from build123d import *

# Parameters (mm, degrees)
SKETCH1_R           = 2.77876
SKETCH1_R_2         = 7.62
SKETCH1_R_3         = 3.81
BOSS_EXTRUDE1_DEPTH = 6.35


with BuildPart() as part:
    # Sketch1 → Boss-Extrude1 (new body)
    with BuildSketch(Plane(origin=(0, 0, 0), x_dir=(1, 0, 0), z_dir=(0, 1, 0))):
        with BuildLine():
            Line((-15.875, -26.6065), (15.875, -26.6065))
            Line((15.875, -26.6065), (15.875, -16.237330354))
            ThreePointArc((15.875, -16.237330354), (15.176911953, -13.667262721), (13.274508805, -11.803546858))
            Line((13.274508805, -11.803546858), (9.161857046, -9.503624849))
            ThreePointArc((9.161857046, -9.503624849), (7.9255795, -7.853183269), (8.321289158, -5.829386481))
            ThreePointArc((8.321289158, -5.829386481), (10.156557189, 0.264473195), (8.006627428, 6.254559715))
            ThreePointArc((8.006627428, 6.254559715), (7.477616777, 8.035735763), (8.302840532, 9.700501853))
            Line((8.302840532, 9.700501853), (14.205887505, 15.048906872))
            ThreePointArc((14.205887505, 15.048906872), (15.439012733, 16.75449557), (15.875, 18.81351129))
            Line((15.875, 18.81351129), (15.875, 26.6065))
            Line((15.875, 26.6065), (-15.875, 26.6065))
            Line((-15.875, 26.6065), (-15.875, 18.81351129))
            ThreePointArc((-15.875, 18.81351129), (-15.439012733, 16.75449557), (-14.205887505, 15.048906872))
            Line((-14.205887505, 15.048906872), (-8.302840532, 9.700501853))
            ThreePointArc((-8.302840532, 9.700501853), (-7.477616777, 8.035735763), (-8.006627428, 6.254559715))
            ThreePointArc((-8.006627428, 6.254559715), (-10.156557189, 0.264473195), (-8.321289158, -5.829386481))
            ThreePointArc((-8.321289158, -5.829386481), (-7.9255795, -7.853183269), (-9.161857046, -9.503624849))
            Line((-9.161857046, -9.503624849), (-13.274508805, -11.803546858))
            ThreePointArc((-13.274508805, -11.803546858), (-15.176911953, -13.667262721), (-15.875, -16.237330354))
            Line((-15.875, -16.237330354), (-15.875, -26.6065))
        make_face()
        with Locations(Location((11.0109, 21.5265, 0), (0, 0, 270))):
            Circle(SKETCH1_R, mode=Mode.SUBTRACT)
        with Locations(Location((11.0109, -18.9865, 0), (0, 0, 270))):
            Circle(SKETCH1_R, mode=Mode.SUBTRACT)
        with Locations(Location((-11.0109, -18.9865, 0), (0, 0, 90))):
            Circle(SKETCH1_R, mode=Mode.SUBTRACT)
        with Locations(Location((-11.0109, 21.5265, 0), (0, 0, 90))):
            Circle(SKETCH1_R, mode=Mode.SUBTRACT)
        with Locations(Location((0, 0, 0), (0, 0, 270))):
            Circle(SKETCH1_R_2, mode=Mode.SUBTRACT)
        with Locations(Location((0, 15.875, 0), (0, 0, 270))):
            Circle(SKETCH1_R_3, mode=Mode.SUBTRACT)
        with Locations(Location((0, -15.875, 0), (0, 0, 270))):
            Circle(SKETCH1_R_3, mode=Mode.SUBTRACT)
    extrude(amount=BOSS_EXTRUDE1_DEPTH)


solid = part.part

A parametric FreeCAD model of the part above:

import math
import FreeCAD as App
import Part
import Sketcher
from FreeCAD import Vector
Q = App.Units.Quantity

doc = App.newDocument("Part")
params = doc.addObject("Spreadsheet::Sheet", "Params")
for row, (alias, value) in enumerate([
    ("sketch1_diameter", "0.3 in"),
    ("sketch1_diameter2", "0.6 in"),
    ("sketch1_radius", "0.2 in"),
    ("sketch1_radius2", "0.1 in"),
    ("sketch1_radius3", "0.4 in"),
    ("pad1_length", "0.25 in"),
], start=1):
    params.set(f"A{row}", alias)
    params.set(f"B{row}", "=" + value)
    params.setAlias(f"B{row}", alias)

body = doc.addObject("PartDesign::Body", "Body")

# Sketch on XZ plane
sketch1 = body.newObject("Sketcher::SketchObject", "Sketch")
sketch1.AttachmentSupport = (doc.getObject("XZ_Plane"), [""])
sketch1.MapMode = "FlatFace"
sketch1.addGeometry([
    Part.LineSegment(Vector(-15.875, 26.6065, 0), Vector(15.875, 26.6065, 0)),  # 0
    Part.LineSegment(Vector(15.875, 26.6065, 0), Vector(15.875, 16.23733, 0)),  # 1
    Part.ArcOfCircle(Part.Circle(Vector(10.795, 16.23733, 0), Vector(0, 0, 1), 5.08), math.radians(-60.78473), math.radians(0)),  # 2
    Part.LineSegment(Vector(13.274509, 11.803547, 0), Vector(9.161857, 9.503625, 0)),  # 3
    Part.ArcOfCircle(Part.Circle(Vector(10.401611, 7.286733, 0), Vector(0, 0, 1), 2.54), math.radians(119.21527), math.radians(215.012736)),  # 4
    Part.ArcOfCircle(Part.Circle(Vector(0, 0, 0), Vector(0, 0, 1), 10.16), math.radians(-37.995986), math.radians(35.012736)),  # 5
    Part.ArcOfCircle(Part.Circle(Vector(10.008284, -7.8182, 0), Vector(0, 0, 1), 2.54), math.radians(142.004014), math.radians(227.822119)),  # 6
    Part.LineSegment(Vector(8.302841, -9.700502, 0), Vector(14.205888, -15.048907, 0)),  # 7
    Part.ArcOfCircle(Part.Circle(Vector(10.795, -18.813511, 0), Vector(0, 0, 1), 5.08), math.radians(0), math.radians(47.822119)),  # 8
    Part.LineSegment(Vector(15.875, -18.813511, 0), Vector(15.875, -26.6065, 0)),  # 9
    Part.LineSegment(Vector(15.875, -26.6065, 0), Vector(-15.875, -26.6065, 0)),  # 10
    Part.LineSegment(Vector(-15.875, -26.6065, 0), Vector(-15.875, -18.813511, 0)),  # 11
    Part.ArcOfCircle(Part.Circle(Vector(-10.795, -18.813511, 0), Vector(0, 0, 1), 5.08), math.radians(132.177881), math.radians(180)),  # 12
    Part.LineSegment(Vector(-14.205888, -15.048907, 0), Vector(-8.302841, -9.700502, 0)),  # 13
    Part.ArcOfCircle(Part.Circle(Vector(-10.008284, -7.8182, 0), Vector(0, 0, 1), 2.54), math.radians(-47.822119), math.radians(37.995986)),  # 14
    Part.ArcOfCircle(Part.Circle(Vector(0, 0, 0), Vector(0, 0, 1), 10.16), math.radians(144.987264), math.radians(217.995986)),  # 15
    Part.ArcOfCircle(Part.Circle(Vector(-10.401611, 7.286733, 0), Vector(0, 0, 1), 2.54), math.radians(-35.012736), math.radians(60.78473)),  # 16
    Part.LineSegment(Vector(-9.161857, 9.503625, 0), Vector(-13.274509, 11.803547, 0)),  # 17
    Part.ArcOfCircle(Part.Circle(Vector(-10.795, 16.23733, 0), Vector(0, 0, 1), 5.08), math.radians(180), math.radians(240.78473)),  # 18
    Part.LineSegment(Vector(-15.875, 16.23733, 0), Vector(-15.875, 26.6065, 0)),  # 19
    Part.Circle(Vector(-11.0109, 18.9865, 0), Vector(0, 0, 1), 2.77876),  # 20
    Part.Circle(Vector(0, 15.875, 0), Vector(0, 0, 1), 3.81),  # 21
    Part.Circle(Vector(11.0109, 18.9865, 0), Vector(0, 0, 1), 2.77876),  # 22
    Part.Circle(Vector(0, 0, 0), Vector(0, 0, 1), 7.62),  # 23
    Part.Circle(Vector(-11.0109, -21.5265, 0), Vector(0, 0, 1), 2.77876),  # 24
    Part.Circle(Vector(0, -15.875, 0), Vector(0, 0, 1), 3.81),  # 25
    Part.Circle(Vector(11.0109, -21.5265, 0), Vector(0, 0, 1), 2.77876),  # 26
], False)
sketch1.addConstraint([
    Sketcher.Constraint("Coincident", 0, 2, 1, 1),
    Sketcher.Constraint("Tangent", 1, 2, 2, 2),
    Sketcher.Constraint("Tangent", 2, 1, 3, 1),
    Sketcher.Constraint("Tangent", 3, 2, 4, 1),
    Sketcher.Constraint("Tangent", 4, 2, 5, 2),
    Sketcher.Constraint("Tangent", 5, 1, 6, 1),
    Sketcher.Constraint("Tangent", 6, 2, 7, 1),
    Sketcher.Constraint("Tangent", 7, 2, 8, 2),
    Sketcher.Constraint("Tangent", 8, 1, 9, 1),
    Sketcher.Constraint("Coincident", 9, 2, 10, 1),
    Sketcher.Constraint("Coincident", 10, 2, 11, 1),
    Sketcher.Constraint("Tangent", 11, 2, 12, 2),
    Sketcher.Constraint("Tangent", 12, 1, 13, 1),
    Sketcher.Constraint("Tangent", 13, 2, 14, 1),
    Sketcher.Constraint("Tangent", 14, 2, 15, 2),
    Sketcher.Constraint("Tangent", 15, 1, 16, 1),
    Sketcher.Constraint("Tangent", 16, 2, 17, 1),
    Sketcher.Constraint("Tangent", 17, 2, 18, 2),
    Sketcher.Constraint("Tangent", 18, 1, 19, 1),
    Sketcher.Constraint("Coincident", 19, 2, 0, 1),
    Sketcher.Constraint("Horizontal", 0),
    Sketcher.Constraint("Vertical", 1),
    Sketcher.Constraint("Vertical", 9),
    Sketcher.Constraint("Horizontal", 10),
    Sketcher.Constraint("Vertical", 11),
    Sketcher.Constraint("Vertical", 19),
    Sketcher.Constraint("Coincident", 5, 3, -1, 1),
    Sketcher.Constraint("Coincident", 15, 3, -1, 1),
    Sketcher.Constraint("Coincident", 23, 3, -1, 1),
    Sketcher.Constraint("Equal", 4, 6),
    Sketcher.Constraint("Equal", 2, 8),
    Sketcher.Constraint("Equal", 8, 12),
    Sketcher.Constraint("Equal", 6, 14),
    Sketcher.Constraint("Equal", 5, 15),
    Sketcher.Constraint("Equal", 14, 16),
    Sketcher.Constraint("Equal", 12, 18),
    Sketcher.Constraint("Equal", 20, 22),
    Sketcher.Constraint("Equal", 22, 24),
    Sketcher.Constraint("Equal", 21, 25),
    Sketcher.Constraint("Equal", 24, 26),
    Sketcher.Constraint("Symmetric", 21, 3, 25, 3, -1, 1),
    Sketcher.Constraint("Symmetric", 0, 2, 10, 2, -1, 1),
    Sketcher.Constraint("Symmetric", 8, 3, 12, 3, -2),
    Sketcher.Constraint("Symmetric", 2, 3, 18, 3, -2),
    Sketcher.Constraint("Symmetric", 20, 3, 22, 3, -2),
    Sketcher.Constraint("Symmetric", 24, 3, 26, 3, -2),
    Sketcher.Constraint("PointOnObject", 21, 3, -2),
    Sketcher.Constraint("Horizontal", 6, 3, 14, 3),
    Sketcher.Constraint("Horizontal", 4, 3, 16, 3),
    Sketcher.Constraint("Vertical", 20, 3, 24, 3),
    Sketcher.Constraint("Diameter", 21, Q("0.3 in")),
    Sketcher.Constraint("Diameter", 23, Q("0.6 in")),
    Sketcher.Constraint("Radius", 2, Q("0.2 in")),
    Sketcher.Constraint("Radius", 4, Q("0.1 in")),
    Sketcher.Constraint("Radius", 5, Q("0.4 in")),
    Sketcher.Constraint("Diameter", 20, Q("0.2188 in")),
    Sketcher.Constraint("DistanceX", 0, 1, 0, 2, Q("1.25 in")),
    Sketcher.Constraint("DistanceY", 22, 3, 0, 2, Q("0.3 in")),
    Sketcher.Constraint("DistanceY", 9, 2, 26, 3, Q("0.2 in")),
    Sketcher.Constraint("DistanceY", -1, 1, 21, 3, Q("0.625 in")),
    Sketcher.Constraint("DistanceX", 24, 3, 26, 3, Q("0.867 in")),
    Sketcher.Constraint("DistanceY", -1, 1, 20, 3, Q("0.7475 in")),
    Sketcher.Constraint("DistanceY", 1, 2, 1, 1, 10.36917),
    Sketcher.Constraint("DistanceY", 9, 2, 9, 1, 7.792989),
    Sketcher.Constraint("DistanceY", 6, 3, -1, 1, 7.8182),
    Sketcher.Constraint("DistanceX", -1, 1, 4, 3, 10.401611),
])
sketch1.setExpression("Constraints[50]", "Params.sketch1_diameter")
sketch1.setExpression("Constraints[51]", "Params.sketch1_diameter2")
sketch1.setExpression("Constraints[52]", "Params.sketch1_radius")
sketch1.setExpression("Constraints[53]", "Params.sketch1_radius2")
sketch1.setExpression("Constraints[54]", "Params.sketch1_radius3")
pad1 = body.newObject("PartDesign::Pad", "Pad")
pad1.Profile = sketch1
pad1.setExpression("Length", "Params.pad1_length")
pad1.Reversed = True

doc.recompute()
